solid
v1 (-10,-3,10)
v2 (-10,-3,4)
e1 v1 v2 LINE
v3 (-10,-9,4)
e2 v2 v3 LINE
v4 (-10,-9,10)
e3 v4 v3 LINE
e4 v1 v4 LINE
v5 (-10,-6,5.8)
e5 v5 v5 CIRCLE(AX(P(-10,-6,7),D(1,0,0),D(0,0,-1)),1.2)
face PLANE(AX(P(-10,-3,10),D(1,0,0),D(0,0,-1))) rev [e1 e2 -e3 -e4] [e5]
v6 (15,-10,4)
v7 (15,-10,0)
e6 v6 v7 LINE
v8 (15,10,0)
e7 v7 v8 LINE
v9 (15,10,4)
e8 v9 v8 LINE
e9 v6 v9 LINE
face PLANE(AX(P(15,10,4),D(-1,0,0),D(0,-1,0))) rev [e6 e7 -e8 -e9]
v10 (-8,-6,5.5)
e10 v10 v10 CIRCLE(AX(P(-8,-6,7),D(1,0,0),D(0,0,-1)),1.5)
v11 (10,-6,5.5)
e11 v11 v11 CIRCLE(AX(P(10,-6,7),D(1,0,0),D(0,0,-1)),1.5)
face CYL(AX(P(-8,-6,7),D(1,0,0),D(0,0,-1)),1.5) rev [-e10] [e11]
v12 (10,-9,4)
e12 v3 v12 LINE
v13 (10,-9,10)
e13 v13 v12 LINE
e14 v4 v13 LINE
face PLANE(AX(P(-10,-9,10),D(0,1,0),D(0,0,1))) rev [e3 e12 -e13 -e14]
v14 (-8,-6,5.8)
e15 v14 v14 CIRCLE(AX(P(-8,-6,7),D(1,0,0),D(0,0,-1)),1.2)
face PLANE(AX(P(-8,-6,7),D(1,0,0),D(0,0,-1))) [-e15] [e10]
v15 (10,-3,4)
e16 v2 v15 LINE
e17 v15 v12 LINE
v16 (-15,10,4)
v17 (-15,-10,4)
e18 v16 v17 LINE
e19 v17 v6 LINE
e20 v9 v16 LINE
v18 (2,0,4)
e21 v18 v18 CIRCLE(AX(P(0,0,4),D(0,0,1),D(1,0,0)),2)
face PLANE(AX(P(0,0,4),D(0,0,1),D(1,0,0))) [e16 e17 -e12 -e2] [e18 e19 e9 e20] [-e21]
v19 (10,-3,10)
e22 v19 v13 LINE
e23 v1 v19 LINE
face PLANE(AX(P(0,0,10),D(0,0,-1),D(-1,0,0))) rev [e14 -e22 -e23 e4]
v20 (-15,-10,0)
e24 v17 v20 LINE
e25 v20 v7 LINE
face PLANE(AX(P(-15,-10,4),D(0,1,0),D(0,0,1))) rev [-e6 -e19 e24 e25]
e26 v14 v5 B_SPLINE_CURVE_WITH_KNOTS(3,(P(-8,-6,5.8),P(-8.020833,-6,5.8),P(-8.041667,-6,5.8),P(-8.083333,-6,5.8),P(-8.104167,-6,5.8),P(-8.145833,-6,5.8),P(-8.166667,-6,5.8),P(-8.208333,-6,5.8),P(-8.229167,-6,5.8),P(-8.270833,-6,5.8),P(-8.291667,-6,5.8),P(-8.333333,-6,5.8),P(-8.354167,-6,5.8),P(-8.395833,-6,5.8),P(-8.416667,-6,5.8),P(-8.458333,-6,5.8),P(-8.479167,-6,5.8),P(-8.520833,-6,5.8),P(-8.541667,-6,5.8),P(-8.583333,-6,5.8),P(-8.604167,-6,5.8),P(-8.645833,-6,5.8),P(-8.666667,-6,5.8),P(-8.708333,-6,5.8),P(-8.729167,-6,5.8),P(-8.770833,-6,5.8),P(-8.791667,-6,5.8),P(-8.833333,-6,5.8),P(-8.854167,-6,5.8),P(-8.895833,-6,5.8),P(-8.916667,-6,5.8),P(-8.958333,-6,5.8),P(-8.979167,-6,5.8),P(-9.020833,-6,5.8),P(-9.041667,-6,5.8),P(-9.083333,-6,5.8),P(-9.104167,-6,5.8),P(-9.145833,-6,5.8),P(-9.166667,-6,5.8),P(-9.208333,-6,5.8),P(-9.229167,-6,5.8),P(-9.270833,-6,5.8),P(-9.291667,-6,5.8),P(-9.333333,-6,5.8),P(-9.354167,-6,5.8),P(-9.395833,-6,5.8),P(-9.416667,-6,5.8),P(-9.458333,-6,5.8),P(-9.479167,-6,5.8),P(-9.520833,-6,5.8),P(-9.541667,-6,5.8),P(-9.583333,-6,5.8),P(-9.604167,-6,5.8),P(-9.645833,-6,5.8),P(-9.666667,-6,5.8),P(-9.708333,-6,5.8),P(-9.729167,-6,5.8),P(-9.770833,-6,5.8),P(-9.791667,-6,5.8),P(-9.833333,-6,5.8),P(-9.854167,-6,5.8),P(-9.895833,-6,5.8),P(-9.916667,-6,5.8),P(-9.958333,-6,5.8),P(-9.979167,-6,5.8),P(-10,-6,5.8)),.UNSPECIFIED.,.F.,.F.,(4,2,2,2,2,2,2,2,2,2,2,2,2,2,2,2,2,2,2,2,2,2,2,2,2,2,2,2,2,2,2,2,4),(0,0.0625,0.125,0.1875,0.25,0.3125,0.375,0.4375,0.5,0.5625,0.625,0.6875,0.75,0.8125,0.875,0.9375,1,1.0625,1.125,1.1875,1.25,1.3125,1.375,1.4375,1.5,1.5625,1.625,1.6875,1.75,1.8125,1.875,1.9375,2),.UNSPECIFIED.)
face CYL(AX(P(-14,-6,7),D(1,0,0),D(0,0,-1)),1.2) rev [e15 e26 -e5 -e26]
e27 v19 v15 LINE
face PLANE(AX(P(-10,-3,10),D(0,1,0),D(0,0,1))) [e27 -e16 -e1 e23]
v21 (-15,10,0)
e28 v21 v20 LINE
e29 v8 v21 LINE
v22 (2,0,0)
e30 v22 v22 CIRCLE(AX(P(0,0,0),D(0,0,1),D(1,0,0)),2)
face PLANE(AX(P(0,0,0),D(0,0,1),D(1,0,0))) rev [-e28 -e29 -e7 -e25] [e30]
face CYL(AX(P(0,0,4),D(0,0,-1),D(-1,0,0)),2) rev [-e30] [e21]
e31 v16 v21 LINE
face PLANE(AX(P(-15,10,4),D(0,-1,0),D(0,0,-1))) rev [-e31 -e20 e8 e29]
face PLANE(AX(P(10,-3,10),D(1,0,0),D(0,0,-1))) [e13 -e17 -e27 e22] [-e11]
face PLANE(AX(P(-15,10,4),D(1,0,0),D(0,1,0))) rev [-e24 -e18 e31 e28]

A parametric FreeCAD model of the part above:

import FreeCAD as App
import Part
import Sketcher
from FreeCAD import Vector

doc = App.newDocument("Part")
params = doc.addObject("Spreadsheet::Sheet", "Params")
for row, (alias, value) in enumerate([
    ("sketch1_diameter", "4 mm"),
    ("sketch1_width", "30 mm"),
    ("sketch1_height", "20 mm"),
    ("pad1_length", "4 mm"),
    ("sketch2_width", "20 mm"),
    ("sketch2_height", "6 mm"),
    ("pad2_length", "6 mm"),
    ("sketch3_diameter", "3 mm"),
    ("pocket1_length", "18 mm"),
    ("sketch4_diameter", "2.4 mm"),
    ("pocket2_length", "6 mm"),
], start=1):
    params.set(f"A{row}", alias)
    params.set(f"B{row}", "=" + value)
    params.setAlias(f"B{row}", alias)

body = doc.addObject("PartDesign::Body", "Body")

# Sketch on XY plane
sketch1 = body.newObject("Sketcher::SketchObject", "Sketch")
sketch1.AttachmentSupport = (doc.getObject("XY_Plane"), [""])
sketch1.MapMode = "FlatFace"
sketch1.addGeometry(Part.LineSegment(Vector(-15, 10, 0), Vector(-15, -10, 0)), False)
sketch1.addGeometry(Part.LineSegment(Vector(-15, -10, 0), Vector(15, -10, 0)), False)
sketch1.addGeometry(Part.LineSegment(Vector(15, -10, 0), Vector(15, 10, 0)), False)
sketch1.addGeometry(Part.LineSegment(Vector(15, 10, 0), Vector(-15, 10, 0)), False)
sketch1.addGeometry(Part.Circle(Vector(0, 0, 0), Vector(0, 0, 1), 2), False)
sketch1.addConstraint(Sketcher.Constraint("Coincident", 0, 2, 1, 1))
sketch1.addConstraint(Sketcher.Constraint("Coincident", 1, 2, 2, 1))
sketch1.addConstraint(Sketcher.Constraint("Coincident", 2, 2, 3, 1))
sketch1.addConstraint(Sketcher.Constraint("Coincident", 3, 2, 0, 1))
sketch1.addConstraint(Sketcher.Constraint("Vertical", 0))
sketch1.addConstraint(Sketcher.Constraint("Horizontal", 1))
sketch1.addConstraint(Sketcher.Constraint("Vertical", 2))
sketch1.addConstraint(Sketcher.Constraint("Horizontal", 3))
sketch1.addConstraint(Sketcher.Constraint("Coincident", 4, 3, -1, 1))
sketch1.addConstraint(Sketcher.Constraint("Symmetric", 0, 2, 2, 2, -1, 1))
sketch1.addConstraint(Sketcher.Constraint("Diameter", 4, 4.0))
sketch1.addConstraint(Sketcher.Constraint("DistanceX", 1, 1, 1, 2, 30.0))
sketch1.addConstraint(Sketcher.Constraint("DistanceY", 0, 2, 0, 1, 20.0))
sketch1.setExpression("Constraints[10]", "Params.sketch1_diameter")
sketch1.setExpression("Constraints[11]", "Params.sketch1_width")
sketch1.setExpression("Constraints[12]", "Params.sketch1_height")
pad1 = body.newObject("PartDesign::Pad", "Pad")
pad1.Profile = sketch1
pad1.setExpression("Length", "Params.pad1_length")

# Sketch on XY plane
sketch2 = body.newObject("Sketcher::SketchObject", "Sketch001")
sketch2.AttachmentSupport = (doc.getObject("XY_Plane"), [""])
sketch2.MapMode = "FlatFace"
sketch2.AttachmentOffset = App.Placement(Vector(0, 0, 4), App.Rotation())
sketch2.addGeometry(Part.LineSegment(Vector(-10, -3, 0), Vector(-10, -9, 0)), False)
sketch2.addGeometry(Part.LineSegment(Vector(-10, -9, 0), Vector(10, -9, 0)), False)
sketch2.addGeometry(Part.LineSegment(Vector(10, -9, 0), Vector(10, -3, 0)), False)
sketch2.addGeometry(Part.LineSegment(Vector(10, -3, 0), Vector(-10, -3, 0)), False)
sketch2.addConstraint(Sketcher.Constraint("Coincident", 0, 2, 1, 1))
sketch2.addConstraint(Sketcher.Constraint("Coincident", 1, 2, 2, 1))
sketch2.addConstraint(Sketcher.Constraint("Coincident", 2, 2, 3, 1))
sketch2.addConstraint(Sketcher.Constraint("Coincident", 3, 2, 0, 1))
sketch2.addConstraint(Sketcher.Constraint("Vertical", 0))
sketch2.addConstraint(Sketcher.Constraint("Horizontal", 1))
sketch2.addConstraint(Sketcher.Constraint("Vertical", 2))
sketch2.addConstraint(Sketcher.Constraint("Horizontal", 3))
sketch2.addConstraint(Sketcher.Constraint("DistanceX", 1, 1, 1, 2, 20.0))
sketch2.addConstraint(Sketcher.Constraint("DistanceY", 0, 2, 0, 1, 6.0))
sketch2.addConstraint(Sketcher.Constraint("DistanceX", 0, 2, -1, 1, 10.0))
sketch2.addConstraint(Sketcher.Constraint("DistanceY", 0, 2, -1, 1, 9.0))
sketch2.setExpression("Constraints[8]", "Params.sketch2_width")
sketch2.setExpression("Constraints[9]", "Params.sketch2_height")
pad2 = body.newObject("PartDesign::Pad", "Pad001")
pad2.Profile = sketch2
pad2.setExpression("Length", "Params.pad2_length")

# Sketch on YZ plane
sketch3 = body.newObject("Sketcher::SketchObject", "Sketch002")
sketch3.AttachmentSupport = (doc.getObject("YZ_Plane"), [""])
sketch3.MapMode = "FlatFace"
sketch3.AttachmentOffset = App.Placement(Vector(0, 0, 10), App.Rotation())
sketch3.addGeometry(Part.Circle(Vector(-6, 7, 0), Vector(0, 0, 1), 1.5), False)
sketch3.addConstraint(Sketcher.Constraint("Diameter", 0, 3.0))
sketch3.addConstraint(Sketcher.Constraint("DistanceX", 0, 3, -1, 1, 6.0))
sketch3.addConstraint(Sketcher.Constraint("DistanceY", -1, 1, 0, 3, 7.0))
sketch3.setExpression("Constraints[0]", "Params.sketch3_diameter")
pocket1 = body.newObject("PartDesign::Pocket", "Pocket")
pocket1.Profile = sketch3
pocket1.setExpression("Length", "Params.pocket1_length")

# Sketch on YZ plane
sketch4 = body.newObject("Sketcher::SketchObject", "Sketch003")
sketch4.AttachmentSupport = (doc.getObject("YZ_Plane"), [""])
sketch4.MapMode = "FlatFace"
sketch4.AttachmentOffset = App.Placement(Vector(0, 0, -8), App.Rotation())
sketch4.addGeometry(Part.Circle(Vector(-6, 7, 0), Vector(0, 0, 1), 1.2), False)
sketch4.addConstraint(Sketcher.Constraint("Diameter", 0, 2.4))
sketch4.addConstraint(Sketcher.Constraint("DistanceX", 0, 3, -1, 1, 6.0))
sketch4.addConstraint(Sketcher.Constraint("DistanceY", -1, 1, 0, 3, 7.0))
sketch4.setExpression("Constraints[0]", "Params.sketch4_diameter")
pocket2 = body.newObject("PartDesign::Pocket", "Pocket001")
pocket2.Profile = sketch4
pocket2.setExpression("Length", "Params.pocket2_length")

doc.recompute()
